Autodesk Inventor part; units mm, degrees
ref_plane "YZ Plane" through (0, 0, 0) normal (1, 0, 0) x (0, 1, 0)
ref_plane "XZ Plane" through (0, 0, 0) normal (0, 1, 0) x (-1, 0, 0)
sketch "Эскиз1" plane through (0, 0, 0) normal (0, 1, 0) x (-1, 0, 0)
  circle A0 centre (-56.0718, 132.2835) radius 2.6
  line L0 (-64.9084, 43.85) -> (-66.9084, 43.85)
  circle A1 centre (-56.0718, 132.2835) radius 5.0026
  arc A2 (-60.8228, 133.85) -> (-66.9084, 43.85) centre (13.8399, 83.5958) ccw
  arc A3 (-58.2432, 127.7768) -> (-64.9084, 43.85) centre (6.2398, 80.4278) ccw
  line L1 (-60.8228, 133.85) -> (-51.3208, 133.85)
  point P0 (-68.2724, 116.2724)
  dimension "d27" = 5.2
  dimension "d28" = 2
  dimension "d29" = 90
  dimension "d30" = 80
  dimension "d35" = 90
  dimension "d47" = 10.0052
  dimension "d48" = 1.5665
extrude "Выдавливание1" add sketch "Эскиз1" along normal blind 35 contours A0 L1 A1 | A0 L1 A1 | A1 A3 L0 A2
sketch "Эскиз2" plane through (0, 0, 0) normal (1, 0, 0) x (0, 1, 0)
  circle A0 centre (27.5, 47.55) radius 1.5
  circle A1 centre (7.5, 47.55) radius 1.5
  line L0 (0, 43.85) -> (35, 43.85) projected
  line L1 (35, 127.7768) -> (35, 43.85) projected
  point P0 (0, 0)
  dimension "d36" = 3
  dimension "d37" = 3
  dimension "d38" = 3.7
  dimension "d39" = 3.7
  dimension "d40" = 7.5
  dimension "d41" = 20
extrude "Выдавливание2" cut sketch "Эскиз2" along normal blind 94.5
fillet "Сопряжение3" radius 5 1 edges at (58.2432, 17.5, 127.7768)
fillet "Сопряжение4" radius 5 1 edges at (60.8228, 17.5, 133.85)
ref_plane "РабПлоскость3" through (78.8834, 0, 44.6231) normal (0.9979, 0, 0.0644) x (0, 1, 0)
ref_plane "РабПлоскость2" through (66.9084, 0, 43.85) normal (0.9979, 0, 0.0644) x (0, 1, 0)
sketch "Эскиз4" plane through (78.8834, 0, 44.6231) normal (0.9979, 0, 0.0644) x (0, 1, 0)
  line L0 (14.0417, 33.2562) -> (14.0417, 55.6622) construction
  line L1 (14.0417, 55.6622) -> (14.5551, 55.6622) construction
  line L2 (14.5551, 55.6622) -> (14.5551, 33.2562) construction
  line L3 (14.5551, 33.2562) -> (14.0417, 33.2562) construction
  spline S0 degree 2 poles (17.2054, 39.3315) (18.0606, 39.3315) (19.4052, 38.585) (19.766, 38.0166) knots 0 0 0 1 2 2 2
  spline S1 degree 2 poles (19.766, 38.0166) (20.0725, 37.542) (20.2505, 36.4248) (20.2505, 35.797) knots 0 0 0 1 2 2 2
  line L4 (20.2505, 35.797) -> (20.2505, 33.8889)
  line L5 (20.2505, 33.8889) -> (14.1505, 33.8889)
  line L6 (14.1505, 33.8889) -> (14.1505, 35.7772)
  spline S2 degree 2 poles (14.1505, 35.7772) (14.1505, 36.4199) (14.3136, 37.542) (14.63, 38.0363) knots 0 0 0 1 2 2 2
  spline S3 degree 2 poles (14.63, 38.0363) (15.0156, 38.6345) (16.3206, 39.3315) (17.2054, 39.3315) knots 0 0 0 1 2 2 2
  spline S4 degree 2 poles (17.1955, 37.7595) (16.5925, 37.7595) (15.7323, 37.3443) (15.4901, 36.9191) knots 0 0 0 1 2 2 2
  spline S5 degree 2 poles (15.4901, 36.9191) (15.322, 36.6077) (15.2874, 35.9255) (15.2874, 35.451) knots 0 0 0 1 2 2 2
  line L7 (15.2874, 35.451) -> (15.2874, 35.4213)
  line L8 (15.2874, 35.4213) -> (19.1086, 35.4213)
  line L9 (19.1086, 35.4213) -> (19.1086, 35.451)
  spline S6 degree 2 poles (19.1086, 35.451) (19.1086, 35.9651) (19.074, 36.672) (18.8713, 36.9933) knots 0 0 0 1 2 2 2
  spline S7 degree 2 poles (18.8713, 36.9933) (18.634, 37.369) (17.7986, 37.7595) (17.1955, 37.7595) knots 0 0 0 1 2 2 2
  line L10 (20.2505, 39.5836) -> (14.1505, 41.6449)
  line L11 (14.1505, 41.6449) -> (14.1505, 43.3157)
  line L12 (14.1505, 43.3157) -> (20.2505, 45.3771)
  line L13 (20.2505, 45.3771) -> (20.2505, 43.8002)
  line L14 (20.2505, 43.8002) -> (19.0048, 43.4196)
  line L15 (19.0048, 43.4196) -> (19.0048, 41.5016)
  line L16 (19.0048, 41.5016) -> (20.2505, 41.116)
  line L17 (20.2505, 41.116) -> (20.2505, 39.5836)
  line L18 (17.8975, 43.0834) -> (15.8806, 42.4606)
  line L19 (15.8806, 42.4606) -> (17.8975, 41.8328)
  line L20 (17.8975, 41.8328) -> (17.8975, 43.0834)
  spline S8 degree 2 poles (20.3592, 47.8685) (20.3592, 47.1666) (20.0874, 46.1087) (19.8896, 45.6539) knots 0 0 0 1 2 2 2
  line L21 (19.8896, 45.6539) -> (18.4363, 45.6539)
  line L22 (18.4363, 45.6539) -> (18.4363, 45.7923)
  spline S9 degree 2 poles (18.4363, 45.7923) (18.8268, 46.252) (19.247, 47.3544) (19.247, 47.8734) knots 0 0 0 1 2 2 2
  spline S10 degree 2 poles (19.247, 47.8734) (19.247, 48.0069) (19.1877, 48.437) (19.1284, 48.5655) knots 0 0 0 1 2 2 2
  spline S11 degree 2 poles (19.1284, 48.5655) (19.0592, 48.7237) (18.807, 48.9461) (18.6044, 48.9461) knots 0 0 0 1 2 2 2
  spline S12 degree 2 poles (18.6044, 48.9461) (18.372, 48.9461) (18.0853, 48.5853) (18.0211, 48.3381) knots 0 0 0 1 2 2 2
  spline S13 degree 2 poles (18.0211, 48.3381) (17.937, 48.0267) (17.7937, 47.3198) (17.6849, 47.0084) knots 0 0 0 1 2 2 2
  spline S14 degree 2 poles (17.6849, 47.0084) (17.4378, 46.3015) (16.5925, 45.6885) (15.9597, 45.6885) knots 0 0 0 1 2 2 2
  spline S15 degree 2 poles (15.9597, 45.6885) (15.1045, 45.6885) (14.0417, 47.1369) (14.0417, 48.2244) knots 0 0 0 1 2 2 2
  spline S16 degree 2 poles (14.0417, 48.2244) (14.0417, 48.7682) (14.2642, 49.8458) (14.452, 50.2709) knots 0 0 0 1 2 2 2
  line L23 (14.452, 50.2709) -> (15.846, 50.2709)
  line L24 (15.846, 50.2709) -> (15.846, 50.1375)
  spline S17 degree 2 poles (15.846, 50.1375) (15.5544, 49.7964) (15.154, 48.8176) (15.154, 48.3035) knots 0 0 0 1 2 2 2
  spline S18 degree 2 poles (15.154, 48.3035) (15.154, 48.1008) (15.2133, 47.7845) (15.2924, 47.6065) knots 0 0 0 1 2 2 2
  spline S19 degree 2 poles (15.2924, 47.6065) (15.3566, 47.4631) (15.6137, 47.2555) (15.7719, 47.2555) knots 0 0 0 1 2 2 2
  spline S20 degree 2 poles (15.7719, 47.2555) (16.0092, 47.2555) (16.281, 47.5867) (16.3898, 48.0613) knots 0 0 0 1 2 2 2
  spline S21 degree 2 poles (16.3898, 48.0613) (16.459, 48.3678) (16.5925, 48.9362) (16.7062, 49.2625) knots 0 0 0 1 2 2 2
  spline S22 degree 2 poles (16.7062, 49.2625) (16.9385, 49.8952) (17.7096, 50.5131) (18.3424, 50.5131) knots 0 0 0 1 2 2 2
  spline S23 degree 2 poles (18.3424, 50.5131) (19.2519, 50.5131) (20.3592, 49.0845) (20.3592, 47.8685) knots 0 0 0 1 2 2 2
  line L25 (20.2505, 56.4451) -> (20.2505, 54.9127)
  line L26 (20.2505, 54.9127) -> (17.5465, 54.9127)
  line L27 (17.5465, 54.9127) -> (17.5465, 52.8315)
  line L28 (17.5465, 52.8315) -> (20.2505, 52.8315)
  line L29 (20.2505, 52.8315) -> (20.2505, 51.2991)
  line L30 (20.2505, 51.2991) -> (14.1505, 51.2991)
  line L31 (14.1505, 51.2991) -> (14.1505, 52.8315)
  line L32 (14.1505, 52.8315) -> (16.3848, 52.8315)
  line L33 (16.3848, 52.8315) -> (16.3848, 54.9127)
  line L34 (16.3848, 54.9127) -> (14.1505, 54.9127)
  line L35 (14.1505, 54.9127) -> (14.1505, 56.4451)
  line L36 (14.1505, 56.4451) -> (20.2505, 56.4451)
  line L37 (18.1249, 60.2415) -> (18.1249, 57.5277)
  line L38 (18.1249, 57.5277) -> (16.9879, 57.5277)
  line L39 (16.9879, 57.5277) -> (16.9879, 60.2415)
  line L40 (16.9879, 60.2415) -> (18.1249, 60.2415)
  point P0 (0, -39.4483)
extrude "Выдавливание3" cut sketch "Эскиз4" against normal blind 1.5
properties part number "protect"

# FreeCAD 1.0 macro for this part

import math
import FreeCAD as App
import Part
import Sketcher

V = App.Vector
Q = App.Units.Quantity


def edges_at(feature, points):
    """Names of the edges that pass closest to the given points."""
    edges = feature.Shape.Edges
    near = lambda p: min(range(len(edges)), key=lambda i: edges[i].distToShape(Part.Vertex(*p))[0])
    return sorted({f"Edge{near(p) + 1}" for p in points})

doc = App.newDocument("Part")
body = doc.addObject("PartDesign::Body", "Body")

# Sketch on XZ plane
sketch1 = body.newObject("Sketcher::SketchObject", "Sketch")
sketch1.AttachmentSupport = (doc.getObject("XZ_Plane"), [""])
sketch1.MapMode = "FlatFace"
sketch1.addGeometry([
    Part.ArcOfCircle(Part.Circle(V(-13.8, 83.6, 0), V(0, 0, 1), 90), math.radians(-26), math.radians(34)),  # 0
    Part.LineSegment(V(66.9, 43.9, 0), V(64.9, 43.9, 0)),  # 1
    Part.ArcOfCircle(Part.Circle(V(-6.2, 80.4, 0), V(0, 0, 1), 80), math.radians(-27), math.radians(36)),  # 2
    Part.ArcOfCircle(Part.Circle(V(56.1, 132.3, 0), V(0, 0, 1), 5), math.radians(18), math.radians(296)),  # 3
    Part.Circle(V(56.1, 132.3, 0), V(0, 0, 1), 2.6),  # 4
], False)
sketch1.addConstraint([
    Sketcher.Constraint("Coincident", 0, 1, 1, 1),
    Sketcher.Constraint("Coincident", 1, 2, 2, 1),
    Sketcher.Constraint("Coincident", 2, 2, 3, 2),
    Sketcher.Constraint("Coincident", 3, 1, 0, 2),
    Sketcher.Constraint("Horizontal", 1),
    Sketcher.Constraint("Coincident", 4, 3, 3, 3),
    Sketcher.Constraint("Radius", 0, Q("90 mm")),
    Sketcher.Constraint("Radius", 2, Q("80 mm")),
    Sketcher.Constraint("Diameter", 4, Q("5.2 mm")),
    Sketcher.Constraint("DistanceX", 1, 2, 1, 1, Q("2 mm")),
    Sketcher.Constraint("Radius", 3, Q("5.0026 mm")),
    Sketcher.Constraint("DistanceX", 0, 3, 2, 3, Q("7.6 mm")),
    Sketcher.Constraint("DistanceY", 3, 3, 3, 1, Q("1.5665 mm")),
    Sketcher.Constraint("DistanceX", 0, 3, -1, 1, Q("13.84 mm")),
    Sketcher.Constraint("DistanceY", -1, 1, 0, 1, Q("43.85 mm")),
    Sketcher.Constraint("DistanceY", -1, 1, 3, 1, Q("133.85 mm")),
    Sketcher.Constraint("DistanceY", 2, 3, 0, 3, Q("3.168 mm")),
])
pad1 = body.newObject("PartDesign::Pad", "Pad")
pad1.Profile = sketch1
pad1.Length = 35
pad1.Reversed = True

# Sketch on YZ plane
sketch2 = body.newObject("Sketcher::SketchObject", "Sketch001")
sketch2.AttachmentSupport = (doc.getObject("YZ_Plane"), [""])
sketch2.MapMode = "FlatFace"
sketch2.addGeometry([
    Part.Circle(V(27.5, 47.5, 0), V(0, 0, 1), 1.5),
    Part.Circle(V(7.5, 47.5, 0), V(0, 0, 1), 1.5),
], False)
sketch2.addConstraint([
    Sketcher.Constraint("Equal", 0, 1),
    Sketcher.Constraint("Horizontal", 0, 3, 1, 3),
    Sketcher.Constraint("Diameter", 0, Q("3 mm")),
    Sketcher.Constraint("DistanceX", 1, 3, 0, 3, Q("20 mm")),
    Sketcher.Constraint("DistanceX", -1, 1, 1, 3, Q("7.5 mm")),
    Sketcher.Constraint("DistanceY", -1, 1, 0, 3, Q("47.55 mm")),
])
pocket1 = body.newObject("PartDesign::Pocket", "Pocket")
pocket1.Profile = sketch2
pocket1.Length = 94.5
pocket1.Reversed = True
doc.recompute()

fillet = body.newObject("PartDesign::Fillet", "Fillet")
fillet.Base = (pocket1, edges_at(pocket1, [(58.243, 17.5, 127.777)]))
fillet.Radius = 5
doc.recompute()

fillet2 = body.newObject("PartDesign::Fillet", "Fillet001")
fillet2.Base = (fillet, edges_at(fillet, [(60.823, 17.5, 133.85)]))
fillet2.Radius = 5

# Sketch on an angled plane
sketch3 = body.newObject("Sketcher::SketchObject", "Sketch002")
sketch3.Placement = App.Placement(V(78.8834, 0, 44.6231), App.Rotation(V(0, 1, 0), V(-0.064401553, 0, 0.997924065), V(0.997924065, 0, 0.064401553), "ZXY"))
sketch3.addGeometry([
    Part.BSplineCurve([V(17.2054, 39.3315, 0), V(18.0606, 39.3315, 0), V(19.4052, 38.585, 0), V(19.766, 38.0166, 0)], [3, 1, 3], [0, 1, 2], False, 2, [1, 1, 1, 1], False),  # 0
    Part.BSplineCurve([V(14.63, 38.0363, 0), V(15.0156, 38.6345, 0), V(16.3206, 39.3315, 0), V(17.2054, 39.3315, 0)], [3, 1, 3], [0, 1, 2], False, 2, [1, 1, 1, 1], False),  # 1
    Part.BSplineCurve([V(14.1505, 35.7772, 0), V(14.1505, 36.4199, 0), V(14.3136, 37.542, 0), V(14.63, 38.0363, 0)], [3, 1, 3], [0, 1, 2], False, 2, [1, 1, 1, 1], False),  # 2
    Part.LineSegment(V(14.1505, 35.7772, 0), V(14.1505, 33.8889, 0)),  # 3
    Part.LineSegment(V(14.1505, 33.8889, 0), V(20.2505, 33.8889, 0)),  # 4
    Part.LineSegment(V(20.2505, 33.8889, 0), V(20.2505, 35.797, 0)),  # 5
    Part.BSplineCurve([V(19.766, 38.0166, 0), V(20.0725, 37.542, 0), V(20.2505, 36.4248, 0), V(20.2505, 35.797, 0)], [3, 1, 3], [0, 1, 2], False, 2, [1, 1, 1, 1], False),  # 6
    Part.BSplineCurve([V(17.1955, 37.7595, 0), V(16.5925, 37.7595, 0), V(15.7323, 37.3443, 0), V(15.4901, 36.9191, 0)], [3, 1, 3], [0, 1, 2], False, 2, [1, 1, 1, 1], False),  # 7
    Part.BSplineCurve([V(18.8713, 36.9933, 0), V(18.634, 37.369, 0), V(17.7986, 37.7595, 0), V(17.1955, 37.7595, 0)], [3, 1, 3], [0, 1, 2], False, 2, [1, 1, 1, 1], False),  # 8
    Part.BSplineCurve([V(19.1086, 35.451, 0), V(19.1086, 35.9651, 0), V(19.074, 36.672, 0), V(18.8713, 36.9933, 0)], [3, 1, 3], [0, 1, 2], False, 2, [1, 1, 1, 1], False),  # 9
    Part.LineSegment(V(19.1086, 35.451, 0), V(19.1086, 35.4213, 0)),  # 10
    Part.LineSegment(V(19.1086, 35.4213, 0), V(15.2874, 35.4213, 0)),  # 11
    Part.LineSegment(V(15.2874, 35.4213, 0), V(15.2874, 35.451, 0)),  # 12
    Part.BSplineCurve([V(15.4901, 36.9191, 0), V(15.322, 36.6077, 0), V(15.2874, 35.9255, 0), V(15.2874, 35.451, 0)], [3, 1, 3], [0, 1, 2], False, 2, [1, 1, 1, 1], False),  # 13
    Part.LineSegment(V(14.1505, 41.6449, 0), V(20.2505, 39.5836, 0)),  # 14
    Part.LineSegment(V(20.2505, 39.5836, 0), V(20.2505, 41.116, 0)),  # 15
    Part.LineSegment(V(20.2505, 41.116, 0), V(19.0048, 41.5016, 0)),  # 16
    Part.LineSegment(V(19.0048, 41.5016, 0), V(19.0048, 43.4196, 0)),  # 17
    Part.LineSegment(V(19.0048, 43.4196, 0), V(20.2505, 43.8002, 0)),  # 18
    Part.LineSegment(V(20.2505, 43.8002, 0), V(20.2505, 45.3771, 0)),  # 19
    Part.LineSegment(V(20.2505, 45.3771, 0), V(14.1505, 43.3157, 0)),  # 20
    Part.LineSegment(V(14.1505, 43.3157, 0), V(14.1505, 41.6449, 0)),  # 21
    Part.LineSegment(V(15.8806, 42.4606, 0), V(17.8975, 43.0834, 0)),  # 22
    Part.LineSegment(V(17.8975, 43.0834, 0), V(17.8975, 41.8328, 0)),  # 23
    Part.LineSegment(V(17.8975, 41.8328, 0), V(15.8806, 42.4606, 0)),  # 24
    Part.BSplineCurve([V(20.3592, 47.8685, 0), V(20.3592, 47.1666, 0), V(20.0874, 46.1087, 0), V(19.8896, 45.6539, 0)], [3, 1, 3], [0, 1, 2], False, 2, [1, 1, 1, 1], False),  # 25
    Part.BSplineCurve([V(18.3424, 50.5131, 0), V(19.2519, 50.5131, 0), V(20.3592, 49.0845, 0), V(20.3592, 47.8685, 0)], [3, 1, 3], [0, 1, 2], False, 2, [1, 1, 1, 1], False),  # 26
    Part.BSplineCurve([V(16.7062, 49.2625, 0), V(16.9385, 49.8952, 0), V(17.7096, 50.5131, 0), V(18.3424, 50.5131, 0)], [3, 1, 3], [0, 1, 2], False, 2, [1, 1, 1, 1], False),  # 27
    Part.BSplineCurve([V(16.3898, 48.0613, 0), V(16.459, 48.3678, 0), V(16.5925, 48.9362, 0), V(16.7062, 49.2625, 0)], [3, 1, 3], [0, 1, 2], False, 2, [1, 1, 1, 1], False),  # 28
    Part.BSplineCurve([V(15.7719, 47.2555, 0), V(16.0092, 47.2555, 0), V(16.281, 47.5867, 0), V(16.3898, 48.0613, 0)], [3, 1, 3], [0, 1, 2], False, 2, [1, 1, 1, 1], False),  # 29
    Part.BSplineCurve([V(15.2924, 47.6065, 0), V(15.3566, 47.4631, 0), V(15.6137, 47.2555, 0), V(15.7719, 47.2555, 0)], [3, 1, 3], [0, 1, 2], False, 2, [1, 1, 1, 1], False),  # 30
    Part.BSplineCurve([V(15.154, 48.3035, 0), V(15.154, 48.1008, 0), V(15.2133, 47.7845, 0), V(15.2924, 47.6065, 0)], [3, 1, 3], [0, 1, 2], False, 2, [1, 1, 1, 1], False),  # 31
    Part.BSplineCurve([V(15.846, 50.1375, 0), V(15.5544, 49.7964, 0), V(15.154, 48.8176, 0), V(15.154, 48.3035, 0)], [3, 1, 3], [0, 1, 2], False, 2, [1, 1, 1, 1], False),  # 32
    Part.LineSegment(V(15.846, 50.1375, 0), V(15.846, 50.2709, 0)),  # 33
    Part.LineSegment(V(15.846, 50.2709, 0), V(14.452, 50.2709, 0)),  # 34
    Part.BSplineCurve([V(14.0417, 48.2244, 0), V(14.0417, 48.7682, 0), V(14.2642, 49.8458, 0), V(14.452, 50.2709, 0)], [3, 1, 3], [0, 1, 2], False, 2, [1, 1, 1, 1], False),  # 35
    Part.BSplineCurve([V(15.9597, 45.6885, 0), V(15.1045, 45.6885, 0), V(14.0417, 47.1369, 0), V(14.0417, 48.2244, 0)], [3, 1, 3], [0, 1, 2], False, 2, [1, 1, 1, 1], False),  # 36
    Part.BSplineCurve([V(17.6849, 47.0084, 0), V(17.4378, 46.3015, 0), V(16.5925, 45.6885, 0), V(15.9597, 45.6885, 0)], [3, 1, 3], [0, 1, 2], False, 2, [1, 1, 1, 1], False),  # 37
    Part.BSplineCurve([V(18.0211, 48.3381, 0), V(17.937, 48.0267, 0), V(17.7937, 47.3198, 0), V(17.6849, 47.0084, 0)], [3, 1, 3], [0, 1, 2], False, 2, [1, 1, 1, 1], False),  # 38
    Part.BSplineCurve([V(18.6044, 48.9461, 0), V(18.372, 48.9461, 0), V(18.0853, 48.5853, 0), V(18.0211, 48.3381, 0)], [3, 1, 3], [0, 1, 2], False, 2, [1, 1, 1, 1], False),  # 39
    Part.BSplineCurve([V(19.1284, 48.5655, 0), V(19.0592, 48.7237, 0), V(18.807, 48.9461, 0), V(18.6044, 48.9461, 0)], [3, 1, 3], [0, 1, 2], False, 2, [1, 1, 1, 1], False),  # 40
    Part.BSplineCurve([V(19.247, 47.8734, 0), V(19.247, 48.0069, 0), V(19.1877, 48.437, 0), V(19.1284, 48.5655, 0)], [3, 1, 3], [0, 1, 2], False, 2, [1, 1, 1, 1], False),  # 41
    Part.BSplineCurve([V(18.4363, 45.7923, 0), V(18.8268, 46.252, 0), V(19.247, 47.3544, 0), V(19.247, 47.8734, 0)], [3, 1, 3], [0, 1, 2], False, 2, [1, 1, 1, 1], False),  # 42
    Part.LineSegment(V(18.4363, 45.7923, 0), V(18.4363, 45.6539, 0)),  # 43
    Part.LineSegment(V(18.4363, 45.6539, 0), V(19.8896, 45.6539, 0)),  # 44
    Part.LineSegment(V(20.2505, 54.9127, 0), V(20.2505, 56.4451, 0)),  # 45
    Part.LineSegment(V(20.2505, 56.4451, 0), V(14.1505, 56.4451, 0)),  # 46
    Part.LineSegment(V(14.1505, 56.4451, 0), V(14.1505, 54.9127, 0)),  # 47
    Part.LineSegment(V(14.1505, 54.9127, 0), V(16.3848, 54.9127, 0)),  # 48
    Part.LineSegment(V(16.3848, 54.9127, 0), V(16.3848, 52.8315, 0)),  # 49
    Part.LineSegment(V(16.3848, 52.8315, 0), V(14.1505, 52.8315, 0)),  # 50
    Part.LineSegment(V(14.1505, 52.8315, 0), V(14.1505, 51.2991, 0)),  # 51
    Part.LineSegment(V(14.1505, 51.2991, 0), V(20.2505, 51.2991, 0)),  # 52
    Part.LineSegment(V(20.2505, 51.2991, 0), V(20.2505, 52.8315, 0)),  # 53
    Part.LineSegment(V(20.2505, 52.8315, 0), V(17.5465, 52.8315, 0)),  # 54
    Part.LineSegment(V(17.5465, 52.8315, 0), V(17.5465, 54.9127, 0)),  # 55
    Part.LineSegment(V(17.5465, 54.9127, 0), V(20.2505, 54.9127, 0)),  # 56
    Part.LineSegment(V(18.1249, 57.5277, 0), V(18.1249, 60.2415, 0)),  # 57
    Part.LineSegment(V(18.1249, 60.2415, 0), V(16.9879, 60.2415, 0)),  # 58
    Part.LineSegment(V(16.9879, 60.2415, 0), V(16.9879, 57.5277, 0)),  # 59
    Part.LineSegment(V(16.9879, 57.5277, 0), V(18.1249, 57.5277, 0)),  # 60
], False)
sketch3.addConstraint([
    Sketcher.Constraint("Block", 0),
    Sketcher.Constraint("Block", 1),
    Sketcher.Constraint("Block", 2),
    Sketcher.Constraint("Block", 6),
    Sketcher.Constraint("Block", 7),
    Sketcher.Constraint("Block", 8),
    Sketcher.Constraint("Block", 9),
    Sketcher.Constraint("Block", 13),
    Sketcher.Constraint("Block", 25),
    Sketcher.Constraint("Block", 26),
    Sketcher.Constraint("Block", 27),
    Sketcher.Constraint("Block", 28),
    Sketcher.Constraint("Block", 29),
    Sketcher.Constraint("Block", 30),
    Sketcher.Constraint("Block", 31),
    Sketcher.Constraint("Block", 32),
    Sketcher.Constraint("Block", 35),
    Sketcher.Constraint("Block", 36),
    Sketcher.Constraint("Block", 37),
    Sketcher.Constraint("Block", 38),
    Sketcher.Constraint("Block", 39),
    Sketcher.Constraint("Block", 40),
    Sketcher.Constraint("Block", 41),
    Sketcher.Constraint("Block", 42),
    Sketcher.Constraint("Coincident", 2, 1, 3, 1),
    Sketcher.Constraint("Coincident", 3, 2, 4, 1),
    Sketcher.Constraint("Coincident", 4, 2, 5, 1),
    Sketcher.Constraint("Coincident", 5, 2, 6, 2),
    Sketcher.Constraint("Coincident", 9, 1, 10, 1),
    Sketcher.Constraint("Coincident", 10, 2, 11, 1),
    Sketcher.Constraint("Coincident", 11, 2, 12, 1),
    Sketcher.Constraint("Coincident", 12, 2, 13, 2),
    Sketcher.Constraint("Coincident", 14, 2, 15, 1),
    Sketcher.Constraint("Coincident", 15, 2, 16, 1),
    Sketcher.Constraint("Coincident", 16, 2, 17, 1),
    Sketcher.Constraint("Coincident", 17, 2, 18, 1),
    Sketcher.Constraint("Coincident", 18, 2, 19, 1),
    Sketcher.Constraint("Coincident", 19, 2, 20, 1),
    Sketcher.Constraint("Coincident", 20, 2, 21, 1),
    Sketcher.Constraint("Coincident", 21, 2, 14, 1),
    Sketcher.Constraint("Coincident", 22, 2, 23, 1),
    Sketcher.Constraint("Coincident", 23, 2, 24, 1),
    Sketcher.Constraint("Coincident", 24, 2, 22, 1),
    Sketcher.Constraint("Coincident", 32, 1, 33, 1),
    Sketcher.Constraint("Coincident", 33, 2, 34, 1),
    Sketcher.Constraint("Coincident", 34, 2, 35, 2),
    Sketcher.Constraint("Coincident", 42, 1, 43, 1),
    Sketcher.Constraint("Coincident", 43, 2, 44, 1),
    Sketcher.Constraint("Coincident", 44, 2, 25, 2),
    Sketcher.Constraint("Coincident", 45, 2, 46, 1),
    Sketcher.Constraint("Coincident", 46, 2, 47, 1),
    Sketcher.Constraint("Coincident", 47, 2, 48, 1),
    Sketcher.Constraint("Coincident", 48, 2, 49, 1),
    Sketcher.Constraint("Coincident", 49, 2, 50, 1),
    Sketcher.Constraint("Coincident", 50, 2, 51, 1),
    Sketcher.Constraint("Coincident", 51, 2, 52, 1),
    Sketcher.Constraint("Coincident", 52, 2, 53, 1),
    Sketcher.Constraint("Coincident", 53, 2, 54, 1),
    Sketcher.Constraint("Coincident", 54, 2, 55, 1),
    Sketcher.Constraint("Coincident", 55, 2, 56, 1),
    Sketcher.Constraint("Coincident", 56, 2, 45, 1),
    Sketcher.Constraint("Coincident", 57, 2, 58, 1),
    Sketcher.Constraint("Coincident", 58, 2, 59, 1),
    Sketcher.Constraint("Coincident", 59, 2, 60, 1),
    Sketcher.Constraint("Coincident", 60, 2, 57, 1),
    Sketcher.Constraint("Vertical", 3),
    Sketcher.Constraint("Horizontal", 4),
    Sketcher.Constraint("Vertical", 5),
    Sketcher.Constraint("Vertical", 10),
    Sketcher.Constraint("Horizontal", 11),
    Sketcher.Constraint("Vertical", 12),
    Sketcher.Constraint("Vertical", 15),
    Sketcher.Constraint("Vertical", 17),
    Sketcher.Constraint("Vertical", 19),
    Sketcher.Constraint("Vertical", 21),
    Sketcher.Constraint("Vertical", 23),
    Sketcher.Constraint("Vertical", 33),
    Sketcher.Constraint("Horizontal", 34),
    Sketcher.Constraint("Vertical", 43),
    Sketcher.Constraint("Horizontal", 44),
    Sketcher.Constraint("Vertical", 45),
    Sketcher.Constraint("Horizontal", 46),
    Sketcher.Constraint("Vertical", 47),
    Sketcher.Constraint("Horizontal", 48),
    Sketcher.Constraint("Vertical", 49),
    Sketcher.Constraint("Horizontal", 50),
    Sketcher.Constraint("Vertical", 51),
    Sketcher.Constraint("Horizontal", 52),
    Sketcher.Constraint("Vertical", 53),
    Sketcher.Constraint("Horizontal", 54),
    Sketcher.Constraint("Vertical", 55),
    Sketcher.Constraint("Horizontal", 56),
    Sketcher.Constraint("Vertical", 57),
    Sketcher.Constraint("Horizontal", 58),
    Sketcher.Constraint("Vertical", 59),
    Sketcher.Constraint("Horizontal", 60),
    Sketcher.Constraint("Horizontal", 50, 2, 53, 2),
    Sketcher.Constraint("Horizontal", 48, 2, 55, 2),
    Sketcher.Constraint("Vertical", 5, 2, 14, 2),
    Sketcher.Constraint("Vertical", 15, 2, 18, 2),
    Sketcher.Constraint("Vertical", 3, 2, 20, 2),
    Sketcher.Constraint("Vertical", 19, 2, 45, 2),
    Sketcher.Constraint("Vertical", 21, 2, 46, 2),
    Sketcher.Constraint("Vertical", 47, 2, 50, 2),
    Sketcher.Constraint("Vertical", 45, 2, 52, 2),
    Sketcher.Constraint("Equal", 15, 45),
    Sketcher.Constraint("Equal", 47, 51),
    Sketcher.Constraint("Equal", 14, 20),
    Sketcher.Constraint("Angle", 16, Q("162.8004 deg")),
    Sketcher.Constraint("Angle", 14, Q("-18.671 deg")),
    Sketcher.Constraint("Angle", 18, Q("16.9895 deg")),
    Sketcher.Constraint("Angle", 22, Q("17.1602 deg")),
    Sketcher.Constraint("Angle", 24, Q("162.7102 deg")),
    Sketcher.Constraint("DistanceX", 54, 2, 54, 1, Q("2.704 mm")),
    Sketcher.Constraint("DistanceX", 58, 2, 58, 1, Q("1.137 mm")),
    Sketcher.Constraint("DistanceY", 5, 1, 5, 2, Q("1.908 mm")),
    Sketcher.Constraint("DistanceY", 17, 1, 17, 2, Q("1.918 mm")),
    Sketcher.Constraint("DistanceY", 19, 1, 19, 2, Q("1.577 mm")),
    Sketcher.Constraint("DistanceX", 21, 2, 24, 2, Q("1.73 mm")),
    Sketcher.Constraint("DistanceX", 48, 2, 57, 2, Q("1.74 mm")),
    Sketcher.Constraint("Distance", 16, Q("1.304 mm")),
    Sketcher.Constraint("DistanceX", 48, 1, 48, 2, Q("2.2343 mm")),
    Sketcher.Constraint("DistanceY", 10, 2, 10, 1, Q("0.0297 mm")),
    Sketcher.Constraint("DistanceY", 15, 1, 15, 2, Q("1.5324 mm")),
    Sketcher.Constraint("DistanceY", 23, 2, 23, 1, Q("1.2506 mm")),
    Sketcher.Constraint("DistanceY", 49, 2, 49, 1, Q("2.0812 mm")),
    Sketcher.Constraint("DistanceY", 57, 1, 57, 2, Q("2.7138 mm")),
    Sketcher.Constraint("DistanceY", -1, 1, 15, 2, Q("41.116 mm")),
    Sketcher.Constraint("DistanceY", -1, 1, 45, 2, Q("56.445 mm")),
    Sketcher.Constraint("DistanceY", 24, 2, 20, 2, Q("0.855 mm")),
    Sketcher.Constraint("DistanceY", 55, 2, 59, 2, Q("2.615 mm")),
])
pocket2 = body.newObject("PartDesign::Pocket", "Pocket001")
pocket2.Profile = sketch3
pocket2.Length = 1.5

doc.recompute()
